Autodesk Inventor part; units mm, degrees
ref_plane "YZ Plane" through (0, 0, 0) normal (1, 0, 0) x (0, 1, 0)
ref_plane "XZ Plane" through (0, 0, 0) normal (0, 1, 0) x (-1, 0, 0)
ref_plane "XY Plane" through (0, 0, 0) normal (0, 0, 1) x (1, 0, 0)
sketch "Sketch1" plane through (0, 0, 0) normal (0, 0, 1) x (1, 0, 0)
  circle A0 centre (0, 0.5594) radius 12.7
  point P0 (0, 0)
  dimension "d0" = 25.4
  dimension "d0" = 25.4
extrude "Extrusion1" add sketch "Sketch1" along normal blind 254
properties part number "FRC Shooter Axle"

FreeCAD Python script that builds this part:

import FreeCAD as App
import Part
import Sketcher
Q = App.Units.Quantity

doc = App.newDocument("Part")
body = doc.addObject("PartDesign::Body", "Body")

sketch1 = body.newObject("Sketcher::SketchObject", "Sketch")
sketch1.AttachmentSupport = (doc.getObject("XY_Plane"), [""])
sketch1.MapMode = "FlatFace"
sketch1.addGeometry(Part.Circle(App.Vector(0, 1, 0), App.Vector(0, 0, 1), 13), False)
sketch1.addConstraint([
    Sketcher.Constraint("PointOnObject", 0, 3, -2),
    Sketcher.Constraint("Diameter", 0, Q("1 in")),
    Sketcher.Constraint("DistanceY", -1, 1, 0, 3, 0.5594),
])
pad1 = body.newObject("PartDesign::Pad", "Pad")
pad1.Profile = sketch1
pad1.Length = Q("10 in")

doc.recompute()
